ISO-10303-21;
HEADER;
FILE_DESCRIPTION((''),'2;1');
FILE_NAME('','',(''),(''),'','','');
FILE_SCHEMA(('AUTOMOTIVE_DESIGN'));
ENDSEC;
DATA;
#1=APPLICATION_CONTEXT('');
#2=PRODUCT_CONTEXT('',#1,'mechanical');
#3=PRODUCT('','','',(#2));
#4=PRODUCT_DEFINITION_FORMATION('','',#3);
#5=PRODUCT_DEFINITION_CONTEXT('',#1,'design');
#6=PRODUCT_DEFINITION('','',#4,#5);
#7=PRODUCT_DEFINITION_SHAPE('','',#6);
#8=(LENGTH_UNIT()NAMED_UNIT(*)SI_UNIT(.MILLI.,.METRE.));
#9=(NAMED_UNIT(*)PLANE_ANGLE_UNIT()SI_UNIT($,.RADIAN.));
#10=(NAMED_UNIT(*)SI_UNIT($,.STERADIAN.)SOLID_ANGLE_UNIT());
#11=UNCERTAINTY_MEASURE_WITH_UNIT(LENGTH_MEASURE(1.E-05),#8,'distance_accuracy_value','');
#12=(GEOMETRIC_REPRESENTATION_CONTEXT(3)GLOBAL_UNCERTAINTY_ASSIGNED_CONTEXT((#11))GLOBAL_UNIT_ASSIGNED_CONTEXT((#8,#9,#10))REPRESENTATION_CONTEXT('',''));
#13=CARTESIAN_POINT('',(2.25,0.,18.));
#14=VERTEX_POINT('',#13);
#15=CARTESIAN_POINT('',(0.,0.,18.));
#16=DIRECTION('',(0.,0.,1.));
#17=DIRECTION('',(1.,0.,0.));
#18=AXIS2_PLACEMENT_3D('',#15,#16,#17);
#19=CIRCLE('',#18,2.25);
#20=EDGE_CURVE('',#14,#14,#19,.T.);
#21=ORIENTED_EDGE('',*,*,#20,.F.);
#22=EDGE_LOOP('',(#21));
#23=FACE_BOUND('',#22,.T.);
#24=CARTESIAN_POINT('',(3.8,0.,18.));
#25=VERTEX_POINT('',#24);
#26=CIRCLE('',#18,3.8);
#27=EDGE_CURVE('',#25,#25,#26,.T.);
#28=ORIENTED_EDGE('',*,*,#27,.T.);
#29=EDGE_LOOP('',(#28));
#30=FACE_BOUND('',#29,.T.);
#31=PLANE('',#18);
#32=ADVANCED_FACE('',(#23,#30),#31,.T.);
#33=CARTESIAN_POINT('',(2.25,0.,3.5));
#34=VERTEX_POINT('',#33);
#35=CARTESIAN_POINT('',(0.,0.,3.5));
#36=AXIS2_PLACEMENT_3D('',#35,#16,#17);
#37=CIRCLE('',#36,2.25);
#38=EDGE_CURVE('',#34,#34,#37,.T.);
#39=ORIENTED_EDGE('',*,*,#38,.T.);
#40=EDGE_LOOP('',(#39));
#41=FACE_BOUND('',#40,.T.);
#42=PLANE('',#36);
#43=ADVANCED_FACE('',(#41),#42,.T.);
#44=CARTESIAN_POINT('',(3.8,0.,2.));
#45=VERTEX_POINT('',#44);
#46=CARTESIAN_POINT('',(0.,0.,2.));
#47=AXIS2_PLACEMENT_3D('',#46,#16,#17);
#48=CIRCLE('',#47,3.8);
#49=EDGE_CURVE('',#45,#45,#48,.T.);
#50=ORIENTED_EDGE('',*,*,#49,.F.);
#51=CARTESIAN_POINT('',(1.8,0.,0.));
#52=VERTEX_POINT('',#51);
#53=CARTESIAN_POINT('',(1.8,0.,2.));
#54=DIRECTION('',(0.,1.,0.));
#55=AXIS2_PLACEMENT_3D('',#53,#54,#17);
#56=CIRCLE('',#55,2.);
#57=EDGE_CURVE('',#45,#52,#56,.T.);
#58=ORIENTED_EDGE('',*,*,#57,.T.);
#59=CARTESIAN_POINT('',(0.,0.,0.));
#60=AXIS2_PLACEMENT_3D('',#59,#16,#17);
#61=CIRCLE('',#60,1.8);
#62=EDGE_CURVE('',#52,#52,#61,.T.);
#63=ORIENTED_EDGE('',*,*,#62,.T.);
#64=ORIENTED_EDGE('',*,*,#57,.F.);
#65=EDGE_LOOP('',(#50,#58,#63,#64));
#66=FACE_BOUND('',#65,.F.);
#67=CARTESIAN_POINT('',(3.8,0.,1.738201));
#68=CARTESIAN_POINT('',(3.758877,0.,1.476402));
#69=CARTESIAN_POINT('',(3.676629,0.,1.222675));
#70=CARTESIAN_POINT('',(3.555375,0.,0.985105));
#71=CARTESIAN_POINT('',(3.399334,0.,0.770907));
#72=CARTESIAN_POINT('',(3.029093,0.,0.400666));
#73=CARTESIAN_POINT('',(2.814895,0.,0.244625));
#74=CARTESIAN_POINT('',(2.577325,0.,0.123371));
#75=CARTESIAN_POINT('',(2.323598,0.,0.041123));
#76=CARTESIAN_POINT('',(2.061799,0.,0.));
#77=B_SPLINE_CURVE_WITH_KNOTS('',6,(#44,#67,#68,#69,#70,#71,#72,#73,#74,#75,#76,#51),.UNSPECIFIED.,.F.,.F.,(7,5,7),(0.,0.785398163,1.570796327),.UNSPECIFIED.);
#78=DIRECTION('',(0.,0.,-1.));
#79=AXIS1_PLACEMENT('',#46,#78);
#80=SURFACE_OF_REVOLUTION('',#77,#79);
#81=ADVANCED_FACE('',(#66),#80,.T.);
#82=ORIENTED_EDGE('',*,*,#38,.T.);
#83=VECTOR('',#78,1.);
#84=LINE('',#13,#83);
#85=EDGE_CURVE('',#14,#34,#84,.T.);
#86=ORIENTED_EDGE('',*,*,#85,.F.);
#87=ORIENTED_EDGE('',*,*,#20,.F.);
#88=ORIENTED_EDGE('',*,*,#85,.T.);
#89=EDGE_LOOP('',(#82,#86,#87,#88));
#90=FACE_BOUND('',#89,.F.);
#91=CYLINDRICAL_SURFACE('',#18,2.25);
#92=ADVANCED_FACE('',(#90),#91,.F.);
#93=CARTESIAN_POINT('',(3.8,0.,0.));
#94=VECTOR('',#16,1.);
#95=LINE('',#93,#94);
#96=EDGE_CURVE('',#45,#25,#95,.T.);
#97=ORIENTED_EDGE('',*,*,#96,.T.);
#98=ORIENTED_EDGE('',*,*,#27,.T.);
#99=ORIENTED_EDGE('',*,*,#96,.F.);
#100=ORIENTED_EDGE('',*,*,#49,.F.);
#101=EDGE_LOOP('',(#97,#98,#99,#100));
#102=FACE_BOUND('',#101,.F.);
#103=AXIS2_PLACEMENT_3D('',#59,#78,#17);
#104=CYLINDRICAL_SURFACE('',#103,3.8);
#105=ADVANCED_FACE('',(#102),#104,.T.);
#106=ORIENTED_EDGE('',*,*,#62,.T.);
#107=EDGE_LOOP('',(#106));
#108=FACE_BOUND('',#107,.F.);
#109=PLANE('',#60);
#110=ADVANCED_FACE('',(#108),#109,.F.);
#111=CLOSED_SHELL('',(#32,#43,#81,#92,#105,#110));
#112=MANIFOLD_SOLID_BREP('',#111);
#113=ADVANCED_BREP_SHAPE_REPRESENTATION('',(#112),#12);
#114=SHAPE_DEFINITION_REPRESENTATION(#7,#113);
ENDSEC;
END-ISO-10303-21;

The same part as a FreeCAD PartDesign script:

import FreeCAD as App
import Part
import Sketcher

V = App.Vector
Q = App.Units.Quantity


def edges_at(feature, points):
    """Names of the edges that pass closest to the given points."""
    edges = feature.Shape.Edges
    near = lambda p: min(range(len(edges)), key=lambda i: edges[i].distToShape(Part.Vertex(*p))[0])
    return sorted({f"Edge{near(p) + 1}" for p in points})

doc = App.newDocument("Part")
body = doc.addObject("PartDesign::Body", "Body")

# Sketch on XY plane
sketch1 = body.newObject("Sketcher::SketchObject", "Sketch")
sketch1.AttachmentSupport = (doc.getObject("XY_Plane"), [""])
sketch1.MapMode = "FlatFace"
sketch1.addGeometry(Part.Circle(V(0, 0, 0), V(0, 0, 1), 3.8), False)
sketch1.addConstraint(Sketcher.Constraint("Coincident", 0, 3, -1, 1))
sketch1.addConstraint(Sketcher.Constraint("Diameter", 0, Q("7.6 mm")))
pad1 = body.newObject("PartDesign::Pad", "Pad")
pad1.Profile = sketch1
pad1.Length = 18

# Sketch on XY plane
sketch2 = body.newObject("Sketcher::SketchObject", "Sketch001")
sketch2.AttachmentSupport = (doc.getObject("XY_Plane"), [""])
sketch2.MapMode = "FlatFace"
sketch2.AttachmentOffset = App.Placement(V(0, 0, 18), App.Rotation())
sketch2.addGeometry(Part.Circle(V(0, 0, 0), V(0, 0, 1), 2.25), False)
sketch2.addConstraint(Sketcher.Constraint("Coincident", 0, 3, -1, 1))
sketch2.addConstraint(Sketcher.Constraint("Diameter", 0, Q("4.5 mm")))
pocket1 = body.newObject("PartDesign::Pocket", "Pocket")
pocket1.Profile = sketch2
pocket1.Length = 14.5
doc.recompute()

fillet = body.newObject("PartDesign::Fillet", "Fillet")
fillet.Base = (pocket1, edges_at(pocket1, [(-3.8, 0, 0)]))
fillet.Radius = 2

doc.recompute()
